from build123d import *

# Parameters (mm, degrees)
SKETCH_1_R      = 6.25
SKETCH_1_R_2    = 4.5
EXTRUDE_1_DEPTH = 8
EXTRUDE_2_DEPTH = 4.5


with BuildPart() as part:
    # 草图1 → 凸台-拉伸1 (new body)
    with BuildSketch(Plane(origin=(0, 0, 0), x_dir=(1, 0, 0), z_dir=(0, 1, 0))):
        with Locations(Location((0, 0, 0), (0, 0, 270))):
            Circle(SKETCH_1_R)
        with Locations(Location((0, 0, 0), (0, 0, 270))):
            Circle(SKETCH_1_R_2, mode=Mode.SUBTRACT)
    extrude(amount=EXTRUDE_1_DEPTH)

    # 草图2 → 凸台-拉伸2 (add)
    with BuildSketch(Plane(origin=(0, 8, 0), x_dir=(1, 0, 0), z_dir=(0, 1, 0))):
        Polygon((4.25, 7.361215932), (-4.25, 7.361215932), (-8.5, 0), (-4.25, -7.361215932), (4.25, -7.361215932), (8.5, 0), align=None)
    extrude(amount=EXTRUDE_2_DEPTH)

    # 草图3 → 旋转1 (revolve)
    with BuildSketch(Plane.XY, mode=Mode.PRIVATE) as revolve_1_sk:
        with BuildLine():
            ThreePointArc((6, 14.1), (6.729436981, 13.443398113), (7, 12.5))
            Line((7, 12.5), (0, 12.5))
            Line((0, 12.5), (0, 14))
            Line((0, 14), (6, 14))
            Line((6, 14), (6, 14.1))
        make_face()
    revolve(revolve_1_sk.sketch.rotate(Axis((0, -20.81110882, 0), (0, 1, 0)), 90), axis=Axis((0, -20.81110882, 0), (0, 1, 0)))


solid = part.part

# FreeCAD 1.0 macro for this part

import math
import FreeCAD as App
import Part
import Sketcher
from FreeCAD import Vector
Q = App.Units.Quantity


def add_polygon(sketch, points):
    """Adds a closed chain of lines whose ends are joined by coincident constraints."""
    first, n = sketch.GeometryCount, len(points)
    for a, b in zip(points, points[1:] + points[:1]):
        sketch.addGeometry(Part.LineSegment(App.Vector(*a, 0), App.Vector(*b, 0)), False)
    for i in range(n):
        sketch.addConstraint(Sketcher.Constraint("Coincident", first + i, 2, first + (i + 1) % n, 1))

doc = App.newDocument("Part")
body = doc.addObject("PartDesign::Body", "Body")

# Sketch on XZ plane
sketch1 = body.newObject("Sketcher::SketchObject", "Sketch")
sketch1.AttachmentSupport = (doc.getObject("XZ_Plane"), [""])
sketch1.MapMode = "FlatFace"
sketch1.addGeometry(Part.Circle(Vector(0, 0, 0), Vector(0, 0, 1), 6.25), False)
sketch1.addGeometry(Part.Circle(Vector(0, 0, 0), Vector(0, 0, 1), 4.5), False)
sketch1.addConstraint(Sketcher.Constraint("Coincident", 0, 3, -1, 1))
sketch1.addConstraint(Sketcher.Constraint("Coincident", 1, 3, -1, 1))
sketch1.addConstraint(Sketcher.Constraint("Diameter", 1, Q("9 mm")))
sketch1.addConstraint(Sketcher.Constraint("Diameter", 0, Q("12.5 mm")))
pad1 = body.newObject("PartDesign::Pad", "Pad")
pad1.Profile = sketch1
pad1.Length = 8
pad1.Reversed = True

# Sketch on XZ plane
sketch2 = body.newObject("Sketcher::SketchObject", "Sketch001")
sketch2.AttachmentSupport = (doc.getObject("XZ_Plane"), [""])
sketch2.MapMode = "FlatFace"
sketch2.AttachmentOffset = App.Placement(Vector(0, 0, -8), App.Rotation())
add_polygon(sketch2, [(4.25, -7.361216), (-4.25, -7.361216), (-8.5, 0), (-4.25, 7.361216), (4.25, 7.361216), (8.5, 0)])  # lines 0-5
sketch2.addConstraint(Sketcher.Constraint("Horizontal", 0))
sketch2.addConstraint(Sketcher.Constraint("Horizontal", 3))
sketch2.addConstraint(Sketcher.Constraint("Symmetric", 0, 2, 3, 2, -1, 1))
sketch2.addConstraint(Sketcher.Constraint("Symmetric", 1, 2, 4, 2, -1, 1))
sketch2.addConstraint(Sketcher.Constraint("PointOnObject", 1, 2, -1))
sketch2.addConstraint(Sketcher.Constraint("Parallel", 2, 5))
sketch2.addConstraint(Sketcher.Constraint("Vertical", 0, 2, 2, 2))
sketch2.addConstraint(Sketcher.Constraint("Angle", 1, Q("120 deg")))
sketch2.addConstraint(Sketcher.Constraint("DistanceX", 0, 2, 0, 1, Q("8.5 mm")))
sketch2.addConstraint(Sketcher.Constraint("DistanceX", 1, 2, 4, 2, Q("17 mm")))
pad2 = body.newObject("PartDesign::Pad", "Pad001")
pad2.Profile = sketch2
pad2.Length = 4.5
pad2.Reversed = True

# Sketch on XY plane
sketch3 = body.newObject("Sketcher::SketchObject", "Sketch002")
sketch3.AttachmentSupport = (doc.getObject("XY_Plane"), [""])
sketch3.MapMode = "FlatFace"
sketch3.addGeometry(Part.ArcOfCircle(Part.Circle(Vector(5.22, 12.5, 0), Vector(0, 0, 1), 1.78), math.radians(0), math.radians(64.010766)), False)
sketch3.addGeometry(Part.LineSegment(Vector(6, 14.1, 0), Vector(6, 14, 0)), False)
sketch3.addGeometry(Part.LineSegment(Vector(6, 14, 0), Vector(0, 14, 0)), False)
sketch3.addGeometry(Part.LineSegment(Vector(0, 14, 0), Vector(0, 12.5, 0)), False)
sketch3.addGeometry(Part.LineSegment(Vector(0, 12.5, 0), Vector(7, 12.5, 0)), False)
sketch3.addConstraint(Sketcher.Constraint("Coincident", 0, 2, 1, 1))
sketch3.addConstraint(Sketcher.Constraint("Coincident", 1, 2, 2, 1))
sketch3.addConstraint(Sketcher.Constraint("Coincident", 2, 2, 3, 1))
sketch3.addConstraint(Sketcher.Constraint("Coincident", 3, 2, 4, 1))
sketch3.addConstraint(Sketcher.Constraint("Coincident", 4, 2, 0, 1))
sketch3.addConstraint(Sketcher.Constraint("Vertical", 1))
sketch3.addConstraint(Sketcher.Constraint("Horizontal", 2))
sketch3.addConstraint(Sketcher.Constraint("Vertical", 3))
sketch3.addConstraint(Sketcher.Constraint("Horizontal", 4))
sketch3.addConstraint(Sketcher.Constraint("PointOnObject", 2, 2, -2))
sketch3.addConstraint(Sketcher.Constraint("Horizontal", 0, 3, 3, 2))
sketch3.addConstraint(Sketcher.Constraint("DistanceX", 2, 2, 2, 1, Q("6 mm")))
sketch3.addConstraint(Sketcher.Constraint("DistanceX", 4, 1, 4, 2, Q("7 mm")))
sketch3.addConstraint(Sketcher.Constraint("Radius", 0, Q("1.78 mm")))
sketch3.addConstraint(Sketcher.Constraint("DistanceY", 1, 2, 1, 1, Q("0.1 mm")))
sketch3.addConstraint(Sketcher.Constraint("DistanceY", -1, 1, 1, 2, Q("14 mm")))
revolution = body.newObject("PartDesign::Revolution", "Revolution")
revolution.Profile = sketch3
revolution.ReferenceAxis = (sketch3, ["V_Axis"])
revolution.Angle = 360

doc.recompute()
